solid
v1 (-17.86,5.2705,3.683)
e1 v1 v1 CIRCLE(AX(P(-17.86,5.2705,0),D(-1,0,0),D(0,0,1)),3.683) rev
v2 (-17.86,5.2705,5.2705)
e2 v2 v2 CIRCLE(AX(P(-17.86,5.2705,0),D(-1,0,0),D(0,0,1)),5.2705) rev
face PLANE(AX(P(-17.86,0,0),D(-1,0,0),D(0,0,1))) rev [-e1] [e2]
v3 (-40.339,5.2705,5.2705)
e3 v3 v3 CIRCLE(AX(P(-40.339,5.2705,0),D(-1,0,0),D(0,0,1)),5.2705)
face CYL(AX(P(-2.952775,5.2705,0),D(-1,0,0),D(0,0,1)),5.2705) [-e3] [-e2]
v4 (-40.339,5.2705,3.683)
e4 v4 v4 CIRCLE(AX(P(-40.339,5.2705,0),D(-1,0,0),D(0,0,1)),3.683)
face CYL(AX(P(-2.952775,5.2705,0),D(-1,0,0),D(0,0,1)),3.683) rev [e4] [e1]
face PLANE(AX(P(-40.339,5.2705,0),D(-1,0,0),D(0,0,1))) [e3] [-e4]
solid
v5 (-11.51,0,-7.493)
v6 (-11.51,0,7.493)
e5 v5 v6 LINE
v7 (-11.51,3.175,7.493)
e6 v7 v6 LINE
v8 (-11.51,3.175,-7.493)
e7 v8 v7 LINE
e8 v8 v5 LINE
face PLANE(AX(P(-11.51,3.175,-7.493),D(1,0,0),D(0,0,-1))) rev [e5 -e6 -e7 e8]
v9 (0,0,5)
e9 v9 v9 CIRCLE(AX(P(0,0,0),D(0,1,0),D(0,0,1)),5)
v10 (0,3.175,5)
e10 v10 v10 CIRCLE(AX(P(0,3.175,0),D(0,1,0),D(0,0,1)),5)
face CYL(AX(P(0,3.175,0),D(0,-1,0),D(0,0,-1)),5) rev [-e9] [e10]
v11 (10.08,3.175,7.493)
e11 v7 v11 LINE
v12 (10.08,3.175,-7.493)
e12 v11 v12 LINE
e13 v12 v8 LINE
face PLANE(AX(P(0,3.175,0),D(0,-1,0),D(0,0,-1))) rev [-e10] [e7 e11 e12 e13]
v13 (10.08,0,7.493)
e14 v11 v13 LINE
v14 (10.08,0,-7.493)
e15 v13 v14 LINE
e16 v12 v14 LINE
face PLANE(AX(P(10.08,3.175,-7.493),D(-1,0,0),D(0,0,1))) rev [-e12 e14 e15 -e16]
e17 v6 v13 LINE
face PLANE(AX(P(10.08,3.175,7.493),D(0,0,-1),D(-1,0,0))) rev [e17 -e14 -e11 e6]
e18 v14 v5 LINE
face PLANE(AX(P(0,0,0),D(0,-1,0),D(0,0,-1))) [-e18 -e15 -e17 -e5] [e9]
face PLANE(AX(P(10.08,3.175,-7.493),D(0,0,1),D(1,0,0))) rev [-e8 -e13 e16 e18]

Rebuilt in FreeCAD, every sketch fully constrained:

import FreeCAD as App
import Part
import Sketcher
from FreeCAD import Vector
Q = App.Units.Quantity

doc = App.newDocument("Part")
body = doc.addObject("PartDesign::Body", "Body")

sketch1 = body.newObject("Sketcher::SketchObject", "Sketch")
sketch1.AttachmentSupport = (doc.getObject("XZ_Plane"), [""])
sketch1.MapMode = "FlatFace"
sketch1.addGeometry(Part.LineSegment(Vector(-12, -7, 0), Vector(-12, 7, 0)), False)
sketch1.addGeometry(Part.LineSegment(Vector(-12, 7, 0), Vector(10, 7, 0)), False)
sketch1.addGeometry(Part.LineSegment(Vector(10, 7, 0), Vector(10, -7, 0)), False)
sketch1.addGeometry(Part.LineSegment(Vector(10, -7, 0), Vector(-12, -7, 0)), False)
sketch1.addGeometry(Part.Circle(Vector(0, 0, 0), Vector(0, 0, 1), 5), False)
sketch1.addConstraint(Sketcher.Constraint("Coincident", 0, 2, 1, 1))
sketch1.addConstraint(Sketcher.Constraint("Coincident", 1, 2, 2, 1))
sketch1.addConstraint(Sketcher.Constraint("Coincident", 2, 2, 3, 1))
sketch1.addConstraint(Sketcher.Constraint("Coincident", 3, 2, 0, 1))
sketch1.addConstraint(Sketcher.Constraint("Vertical", 0))
sketch1.addConstraint(Sketcher.Constraint("Horizontal", 1))
sketch1.addConstraint(Sketcher.Constraint("Vertical", 2))
sketch1.addConstraint(Sketcher.Constraint("Horizontal", 3))
sketch1.addConstraint(Sketcher.Constraint("Coincident", 4, 3, -1, 1))
sketch1.addConstraint(Sketcher.Constraint("DistanceX", 1, 1, 1, 2, Q("0.85 in")))
sketch1.addConstraint(Sketcher.Constraint("DistanceY", 0, 1, 0, 2, Q("0.59 in")))
sketch1.addConstraint(Sketcher.Constraint("Diameter", 4, Q("10 mm")))
sketch1.addConstraint(Sketcher.Constraint("DistanceY", -1, 1, 0, 2, Q("0.295 in")))
sketch1.addConstraint(Sketcher.Constraint("DistanceX", 0, 2, -1, 1, Q("11.51 mm")))
pad1 = body.newObject("PartDesign::Pad", "Pad")
pad1.Profile = sketch1
pad1.Length = Q("0.125 in")
pad1.Reversed = True
body2 = doc.addObject("PartDesign::Body", "Body001")

sketch2 = body2.newObject("Sketcher::SketchObject", "Sketch001")
sketch2.AttachmentSupport = (doc.getObject("YZ_Plane001"), [""])
sketch2.MapMode = "FlatFace"
sketch2.AttachmentOffset = App.Placement(Vector(0, 0, -40.339), App.Rotation())
sketch2.addGeometry(Part.Circle(Vector(5.3, 0, 0), Vector(0, 0, 1), 5.3), False)
sketch2.addGeometry(Part.Circle(Vector(5.3, 0, 0), Vector(0, 0, 1), 3.7), False)
sketch2.addConstraint(Sketcher.Constraint("Coincident", 1, 3, 0, 3))
sketch2.addConstraint(Sketcher.Constraint("PointOnObject", 0, 3, -1))
sketch2.addConstraint(Sketcher.Constraint("Diameter", 1, Q("0.29 in")))
sketch2.addConstraint(Sketcher.Constraint("Diameter", 0, Q("0.415 in")))
sketch2.addConstraint(Sketcher.Constraint("DistanceX", -1, 1, 0, 3, Q("0.2075 in")))
pad2 = body2.newObject("PartDesign::Pad", "Pad001")
pad2.Profile = sketch2
pad2.Length = Q("0.885 in")

doc.recompute()
